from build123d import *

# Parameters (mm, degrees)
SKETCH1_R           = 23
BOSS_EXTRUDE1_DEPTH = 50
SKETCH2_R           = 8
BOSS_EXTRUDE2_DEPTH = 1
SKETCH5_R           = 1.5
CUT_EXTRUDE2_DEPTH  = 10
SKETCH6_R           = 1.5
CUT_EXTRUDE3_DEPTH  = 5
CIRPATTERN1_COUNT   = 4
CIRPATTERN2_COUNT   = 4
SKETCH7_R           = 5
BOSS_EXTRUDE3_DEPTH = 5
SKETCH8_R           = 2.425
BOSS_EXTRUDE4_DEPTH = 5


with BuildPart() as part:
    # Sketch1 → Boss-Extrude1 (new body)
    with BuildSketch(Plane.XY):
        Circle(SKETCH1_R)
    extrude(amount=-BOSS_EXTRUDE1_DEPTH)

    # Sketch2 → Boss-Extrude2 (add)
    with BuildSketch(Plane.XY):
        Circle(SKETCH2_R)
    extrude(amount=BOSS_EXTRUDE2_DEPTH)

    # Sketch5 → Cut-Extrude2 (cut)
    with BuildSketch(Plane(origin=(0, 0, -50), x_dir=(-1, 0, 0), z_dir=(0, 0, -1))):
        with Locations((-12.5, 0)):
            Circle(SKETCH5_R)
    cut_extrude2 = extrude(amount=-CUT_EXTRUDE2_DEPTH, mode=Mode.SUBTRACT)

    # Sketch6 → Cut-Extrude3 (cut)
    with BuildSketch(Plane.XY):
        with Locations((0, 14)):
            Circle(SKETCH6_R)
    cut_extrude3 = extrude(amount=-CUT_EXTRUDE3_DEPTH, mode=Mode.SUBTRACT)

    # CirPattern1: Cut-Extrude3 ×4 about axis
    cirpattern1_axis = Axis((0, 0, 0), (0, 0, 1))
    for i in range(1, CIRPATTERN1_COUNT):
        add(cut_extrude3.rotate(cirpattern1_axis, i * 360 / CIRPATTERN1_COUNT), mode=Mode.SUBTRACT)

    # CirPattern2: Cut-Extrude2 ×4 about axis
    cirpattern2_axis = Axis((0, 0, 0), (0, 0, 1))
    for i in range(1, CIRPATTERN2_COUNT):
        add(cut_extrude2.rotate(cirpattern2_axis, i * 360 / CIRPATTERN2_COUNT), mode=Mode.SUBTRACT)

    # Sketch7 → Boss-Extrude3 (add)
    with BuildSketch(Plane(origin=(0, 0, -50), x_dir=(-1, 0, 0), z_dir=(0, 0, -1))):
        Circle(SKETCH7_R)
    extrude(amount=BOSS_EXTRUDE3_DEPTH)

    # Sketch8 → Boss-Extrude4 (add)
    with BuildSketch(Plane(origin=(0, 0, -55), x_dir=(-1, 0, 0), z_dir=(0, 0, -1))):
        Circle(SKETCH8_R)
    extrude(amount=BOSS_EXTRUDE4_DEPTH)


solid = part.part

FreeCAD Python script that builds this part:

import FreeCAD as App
import Part
import Sketcher
from FreeCAD import Vector
Q = App.Units.Quantity

doc = App.newDocument("Part")
body = doc.addObject("PartDesign::Body", "Body")

# Sketch on XY plane
sketch1 = body.newObject("Sketcher::SketchObject", "Sketch")
sketch1.AttachmentSupport = (doc.getObject("XY_Plane"), [""])
sketch1.MapMode = "FlatFace"
sketch1.addGeometry(Part.Circle(Vector(0, 0, 0), Vector(0, 0, 1), 23), False)
sketch1.addConstraint(Sketcher.Constraint("Coincident", 0, 3, -1, 1))
sketch1.addConstraint(Sketcher.Constraint("Diameter", 0, Q("46 mm")))
pad1 = body.newObject("PartDesign::Pad", "Pad")
pad1.Profile = sketch1
pad1.Length = 50
pad1.Reversed = True

# Sketch on XY plane
sketch2 = body.newObject("Sketcher::SketchObject", "Sketch001")
sketch2.AttachmentSupport = (doc.getObject("XY_Plane"), [""])
sketch2.MapMode = "FlatFace"
sketch2.addGeometry(Part.Circle(Vector(0, 0, 0), Vector(0, 0, 1), 8), False)
sketch2.addConstraint(Sketcher.Constraint("Coincident", 0, 3, -1, 1))
sketch2.addConstraint(Sketcher.Constraint("Diameter", 0, Q("16 mm")))
pad2 = body.newObject("PartDesign::Pad", "Pad001")
pad2.Profile = sketch2
pad2.Length = 1

# Sketch on XY plane
sketch3 = body.newObject("Sketcher::SketchObject", "Sketch002")
sketch3.AttachmentSupport = (doc.getObject("XY_Plane"), [""])
sketch3.MapMode = "FlatFace"
sketch3.AttachmentOffset = App.Placement(Vector(0, 0, -50), App.Rotation())
sketch3.addGeometry(Part.Circle(Vector(12.5, 0, 0), Vector(0, 0, 1), 1.5), False)
sketch3.addConstraint(Sketcher.Constraint("PointOnObject", 0, 3, -1))
sketch3.addConstraint(Sketcher.Constraint("Diameter", 0, Q("3 mm")))
sketch3.addConstraint(Sketcher.Constraint("DistanceX", -1, 1, 0, 3, Q("12.5 mm")))
pocket1 = body.newObject("PartDesign::Pocket", "Pocket")
pocket1.Profile = sketch3
pocket1.Length = 10
pocket1.Reversed = True

# Sketch on XY plane
sketch4 = body.newObject("Sketcher::SketchObject", "Sketch003")
sketch4.AttachmentSupport = (doc.getObject("XY_Plane"), [""])
sketch4.MapMode = "FlatFace"
sketch4.addGeometry(Part.Circle(Vector(0, 14, 0), Vector(0, 0, 1), 1.5), False)
sketch4.addConstraint(Sketcher.Constraint("PointOnObject", 0, 3, -2))
sketch4.addConstraint(Sketcher.Constraint("Diameter", 0, Q("3 mm")))
sketch4.addConstraint(Sketcher.Constraint("DistanceY", -1, 1, 0, 3, Q("14 mm")))
pocket2 = body.newObject("PartDesign::Pocket", "Pocket001")
pocket2.Profile = sketch4
pocket2.Length = 5
doc.recompute()

polarpattern = body.newObject("PartDesign::PolarPattern", "PolarPattern")
polarpattern.Originals = [pocket2]
polarpattern.Axis = (doc.getObject("Z_Axis"), [""])
polarpattern.Angle = 360
polarpattern.Occurrences = 4
body.Tip = polarpattern
doc.recompute()

polarpattern2 = body.newObject("PartDesign::PolarPattern", "PolarPattern001")
polarpattern2.Originals = [pocket1]
polarpattern2.Axis = (doc.getObject("Z_Axis"), [""])
polarpattern2.Angle = 360
polarpattern2.Occurrences = 4
body.Tip = polarpattern2

# Sketch on XY plane
sketch5 = body.newObject("Sketcher::SketchObject", "Sketch004")
sketch5.AttachmentSupport = (doc.getObject("XY_Plane"), [""])
sketch5.MapMode = "FlatFace"
sketch5.AttachmentOffset = App.Placement(Vector(0, 0, -50), App.Rotation())
sketch5.addGeometry(Part.Circle(Vector(0, 0, 0), Vector(0, 0, 1), 5), False)
sketch5.addConstraint(Sketcher.Constraint("Coincident", 0, 3, -1, 1))
sketch5.addConstraint(Sketcher.Constraint("Diameter", 0, Q("10 mm")))
pad3 = body.newObject("PartDesign::Pad", "Pad002")
pad3.Profile = sketch5
pad3.Length = 5
pad3.Reversed = True

# Sketch on XY plane
sketch6 = body.newObject("Sketcher::SketchObject", "Sketch005")
sketch6.AttachmentSupport = (doc.getObject("XY_Plane"), [""])
sketch6.MapMode = "FlatFace"
sketch6.AttachmentOffset = App.Placement(Vector(0, 0, -55), App.Rotation())
sketch6.addGeometry(Part.Circle(Vector(0, 0, 0), Vector(0, 0, 1), 2.425), False)
sketch6.addConstraint(Sketcher.Constraint("Coincident", 0, 3, -1, 1))
sketch6.addConstraint(Sketcher.Constraint("Diameter", 0, Q("4.85 mm")))
pad4 = body.newObject("PartDesign::Pad", "Pad003")
pad4.Profile = sketch6
pad4.Length = 5
pad4.Reversed = True

doc.recompute()
